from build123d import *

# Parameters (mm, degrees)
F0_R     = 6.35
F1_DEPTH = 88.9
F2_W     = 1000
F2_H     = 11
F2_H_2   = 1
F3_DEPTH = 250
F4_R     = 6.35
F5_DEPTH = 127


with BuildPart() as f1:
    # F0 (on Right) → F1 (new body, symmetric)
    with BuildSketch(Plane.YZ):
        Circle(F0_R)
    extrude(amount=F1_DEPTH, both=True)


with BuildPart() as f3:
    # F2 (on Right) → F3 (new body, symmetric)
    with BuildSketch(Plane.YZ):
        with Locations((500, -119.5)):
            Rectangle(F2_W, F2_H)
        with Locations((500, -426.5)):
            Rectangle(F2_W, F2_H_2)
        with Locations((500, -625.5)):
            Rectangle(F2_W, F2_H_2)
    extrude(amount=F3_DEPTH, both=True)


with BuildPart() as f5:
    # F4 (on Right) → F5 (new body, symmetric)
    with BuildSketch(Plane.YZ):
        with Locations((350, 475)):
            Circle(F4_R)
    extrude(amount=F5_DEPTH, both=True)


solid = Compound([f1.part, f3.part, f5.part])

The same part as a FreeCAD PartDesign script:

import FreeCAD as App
import Part
import Sketcher
from FreeCAD import Vector
Q = App.Units.Quantity


def add_polygon(sketch, points):
    """Adds a closed chain of lines whose ends are joined by coincident constraints."""
    first, n = sketch.GeometryCount, len(points)
    for a, b in zip(points, points[1:] + points[:1]):
        sketch.addGeometry(Part.LineSegment(App.Vector(*a, 0), App.Vector(*b, 0)), False)
    for i in range(n):
        sketch.addConstraint(Sketcher.Constraint("Coincident", first + i, 2, first + (i + 1) % n, 1))

doc = App.newDocument("Part")
params = doc.addObject("Spreadsheet::Sheet", "Params")
for row, (alias, value) in enumerate([
    ("sketch1_diameter", "12.7 mm"),
    ("pad1_length", "177.8 mm"),
    ("sketch2_width", "1000 mm"),
    ("sketch2_height", "11 mm"),
    ("sketch2_height2", "1 mm"),
    ("pad2_length", "500 mm"),
    ("sketch3_diameter", "12.7 mm"),
    ("pad3_length", "254 mm"),
], start=1):
    params.set(f"A{row}", alias)
    params.set(f"B{row}", "=" + value)
    params.setAlias(f"B{row}", alias)

body = doc.addObject("PartDesign::Body", "Body")

# Sketch on YZ plane
sketch1 = body.newObject("Sketcher::SketchObject", "Sketch")
sketch1.AttachmentSupport = (doc.getObject("YZ_Plane"), [""])
sketch1.MapMode = "FlatFace"
sketch1.addGeometry(Part.Circle(Vector(0, 0, 0), Vector(0, 0, 1), 6), False)
sketch1.addConstraint([
    Sketcher.Constraint("Coincident", 0, 3, -1, 1),
    Sketcher.Constraint("Diameter", 0, Q("12.7 mm")),
])
sketch1.setExpression("Constraints[1]", "Params.sketch1_diameter")
pad1 = body.newObject("PartDesign::Pad", "Pad")
pad1.Profile = sketch1
pad1.setExpression("Length", "Params.pad1_length")
pad1.Midplane = True
body2 = doc.addObject("PartDesign::Body", "Body001")
body2.AllowCompound = True

# Sketch on YZ plane
sketch2 = body2.newObject("Sketcher::SketchObject", "Sketch001")
sketch2.AttachmentSupport = (doc.getObject("YZ_Plane001"), [""])
sketch2.MapMode = "FlatFace"
add_polygon(sketch2, [(0, -114), (0, -125), (1000, -125), (1000, -114)])  # lines 0-3
add_polygon(sketch2, [(0, -426), (0, -427), (1000, -427), (1000, -426)])  # lines 4-7
add_polygon(sketch2, [(0, -625), (0, -626), (1000, -626), (1000, -625)])  # lines 8-11
sketch2.addConstraint([
    Sketcher.Constraint("Vertical", 0),
    Sketcher.Constraint("Horizontal", 1),
    Sketcher.Constraint("Vertical", 2),
    Sketcher.Constraint("Horizontal", 3),
    Sketcher.Constraint("Vertical", 4),
    Sketcher.Constraint("Horizontal", 5),
    Sketcher.Constraint("Vertical", 6),
    Sketcher.Constraint("Horizontal", 7),
    Sketcher.Constraint("Vertical", 8),
    Sketcher.Constraint("Horizontal", 9),
    Sketcher.Constraint("Vertical", 10),
    Sketcher.Constraint("Horizontal", 11),
    Sketcher.Constraint("PointOnObject", 0, 2, -2),
    Sketcher.Constraint("PointOnObject", 4, 2, -2),
    Sketcher.Constraint("PointOnObject", 8, 2, -2),
    Sketcher.Constraint("Vertical", 2, 2, 5, 2),
    Sketcher.Constraint("Vertical", 6, 2, 9, 2),
    Sketcher.Constraint("Equal", 6, 8),
    Sketcher.Constraint("DistanceX", 1, 1, 1, 2, Q("1000 mm")),
    Sketcher.Constraint("DistanceY", 0, 2, 0, 1, Q("11 mm")),
    Sketcher.Constraint("DistanceY", 4, 2, 4, 1, Q("1 mm")),
    Sketcher.Constraint("DistanceY", 0, 2, -1, 1, Q("125 mm")),
    Sketcher.Constraint("DistanceY", 4, 2, -1, 1, Q("427 mm")),
    Sketcher.Constraint("DistanceY", 8, 2, -1, 1, Q("626 mm")),
])
sketch2.setExpression("Constraints[30]", "Params.sketch2_width")
sketch2.setExpression("Constraints[31]", "Params.sketch2_height")
sketch2.setExpression("Constraints[32]", "Params.sketch2_height2")
pad2 = body2.newObject("PartDesign::Pad", "Pad001")
pad2.Profile = sketch2
pad2.setExpression("Length", "Params.pad2_length")
pad2.Midplane = True
body3 = doc.addObject("PartDesign::Body", "Body002")

# Sketch on YZ plane
sketch3 = body3.newObject("Sketcher::SketchObject", "Sketch002")
sketch3.AttachmentSupport = (doc.getObject("YZ_Plane002"), [""])
sketch3.MapMode = "FlatFace"
sketch3.addGeometry(Part.Circle(Vector(350, 475, 0), Vector(0, 0, 1), 6), False)
sketch3.addConstraint([
    Sketcher.Constraint("Diameter", 0, Q("12.7 mm")),
    Sketcher.Constraint("DistanceX", -1, 1, 0, 3, Q("350 mm")),
    Sketcher.Constraint("DistanceY", -1, 1, 0, 3, Q("475 mm")),
])
sketch3.setExpression("Constraints[0]", "Params.sketch3_diameter")
pad3 = body3.newObject("PartDesign::Pad", "Pad002")
pad3.Profile = sketch3
pad3.setExpression("Length", "Params.pad3_length")
pad3.Midplane = True

doc.recompute()
